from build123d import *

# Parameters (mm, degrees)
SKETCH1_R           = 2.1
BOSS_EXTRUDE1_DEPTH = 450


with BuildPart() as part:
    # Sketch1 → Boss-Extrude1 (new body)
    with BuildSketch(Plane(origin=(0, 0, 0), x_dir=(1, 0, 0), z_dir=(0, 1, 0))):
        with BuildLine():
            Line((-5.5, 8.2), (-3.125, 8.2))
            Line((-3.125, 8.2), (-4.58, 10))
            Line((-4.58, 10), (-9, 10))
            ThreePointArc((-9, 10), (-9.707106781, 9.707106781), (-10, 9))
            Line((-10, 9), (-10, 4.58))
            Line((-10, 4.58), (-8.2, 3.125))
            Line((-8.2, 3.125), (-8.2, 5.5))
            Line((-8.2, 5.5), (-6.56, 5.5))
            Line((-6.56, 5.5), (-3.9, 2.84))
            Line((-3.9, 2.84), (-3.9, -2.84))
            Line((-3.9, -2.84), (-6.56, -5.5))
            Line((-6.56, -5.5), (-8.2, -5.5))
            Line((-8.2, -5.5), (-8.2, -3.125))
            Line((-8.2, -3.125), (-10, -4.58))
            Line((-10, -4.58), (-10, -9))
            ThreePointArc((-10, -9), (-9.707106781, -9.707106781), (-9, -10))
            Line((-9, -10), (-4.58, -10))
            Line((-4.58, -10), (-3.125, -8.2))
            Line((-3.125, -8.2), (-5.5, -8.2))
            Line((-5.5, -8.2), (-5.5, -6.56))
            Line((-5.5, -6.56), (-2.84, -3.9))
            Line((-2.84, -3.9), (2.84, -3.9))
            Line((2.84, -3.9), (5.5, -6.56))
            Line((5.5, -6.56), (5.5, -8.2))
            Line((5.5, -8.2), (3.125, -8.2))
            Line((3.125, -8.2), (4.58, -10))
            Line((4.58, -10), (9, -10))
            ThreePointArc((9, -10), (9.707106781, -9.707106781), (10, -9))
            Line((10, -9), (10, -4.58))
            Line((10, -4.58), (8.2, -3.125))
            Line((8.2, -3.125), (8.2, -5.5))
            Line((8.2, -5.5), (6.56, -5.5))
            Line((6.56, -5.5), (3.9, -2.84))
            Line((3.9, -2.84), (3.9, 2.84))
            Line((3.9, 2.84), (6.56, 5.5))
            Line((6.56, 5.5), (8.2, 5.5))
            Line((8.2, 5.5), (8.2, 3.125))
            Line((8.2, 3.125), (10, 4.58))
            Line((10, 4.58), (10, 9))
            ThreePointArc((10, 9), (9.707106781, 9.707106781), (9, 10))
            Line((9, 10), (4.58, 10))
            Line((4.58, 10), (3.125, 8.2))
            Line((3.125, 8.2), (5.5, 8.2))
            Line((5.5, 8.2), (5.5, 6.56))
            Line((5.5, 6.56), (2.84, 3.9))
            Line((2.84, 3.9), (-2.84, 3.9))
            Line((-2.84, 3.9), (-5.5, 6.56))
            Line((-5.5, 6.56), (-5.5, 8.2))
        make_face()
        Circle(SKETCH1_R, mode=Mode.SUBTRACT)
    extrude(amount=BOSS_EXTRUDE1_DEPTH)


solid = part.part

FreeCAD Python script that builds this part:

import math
import FreeCAD as App
import Part
import Sketcher

V = App.Vector

doc = App.newDocument("Part")
body = doc.addObject("PartDesign::Body", "Body")

# Sketch on XZ plane
sketch1 = body.newObject("Sketcher::SketchObject", "Sketch")
sketch1.AttachmentSupport = (doc.getObject("XZ_Plane"), [""])
sketch1.MapMode = "FlatFace"
sketch1.addGeometry(Part.LineSegment(V(-5.5, -8.2, 0), V(-3.1, -8.2, 0)), False)
sketch1.addGeometry(Part.LineSegment(V(-3.1, -8.2, 0), V(-4.6, -10, 0)), False)
sketch1.addGeometry(Part.LineSegment(V(-4.6, -10, 0), V(-9, -10, 0)), False)
sketch1.addGeometry(Part.ArcOfCircle(Part.Circle(V(-9, -9, 0), V(0, 0, 1), 1), math.radians(-180), math.radians(-90)), False)
sketch1.addGeometry(Part.LineSegment(V(-10, -9, 0), V(-10, -4.6, 0)), False)
sketch1.addGeometry(Part.LineSegment(V(-10, -4.6, 0), V(-8.2, -3.1, 0)), False)
sketch1.addGeometry(Part.LineSegment(V(-8.2, -3.1, 0), V(-8.2, -5.5, 0)), False)
sketch1.addGeometry(Part.LineSegment(V(-8.2, -5.5, 0), V(-6.6, -5.5, 0)), False)
sketch1.addGeometry(Part.LineSegment(V(-6.6, -5.5, 0), V(-3.9, -2.8, 0)), False)
sketch1.addGeometry(Part.LineSegment(V(-3.9, -2.8, 0), V(-3.9, 2.8, 0)), False)
sketch1.addGeometry(Part.LineSegment(V(-3.9, 2.8, 0), V(-6.6, 5.5, 0)), False)
sketch1.addGeometry(Part.LineSegment(V(-6.6, 5.5, 0), V(-8.2, 5.5, 0)), False)
sketch1.addGeometry(Part.LineSegment(V(-8.2, 5.5, 0), V(-8.2, 3.1, 0)), False)
sketch1.addGeometry(Part.LineSegment(V(-8.2, 3.1, 0), V(-10, 4.6, 0)), False)
sketch1.addGeometry(Part.LineSegment(V(-10, 4.6, 0), V(-10, 9, 0)), False)
sketch1.addGeometry(Part.ArcOfCircle(Part.Circle(V(-9, 9, 0), V(0, 0, 1), 1), math.radians(90), math.radians(180)), False)
sketch1.addGeometry(Part.LineSegment(V(-9, 10, 0), V(-4.6, 10, 0)), False)
sketch1.addGeometry(Part.LineSegment(V(-4.6, 10, 0), V(-3.1, 8.2, 0)), False)
sketch1.addGeometry(Part.LineSegment(V(-3.1, 8.2, 0), V(-5.5, 8.2, 0)), False)
sketch1.addGeometry(Part.LineSegment(V(-5.5, 8.2, 0), V(-5.5, 6.6, 0)), False)
sketch1.addGeometry(Part.LineSegment(V(-5.5, 6.6, 0), V(-2.8, 3.9, 0)), False)
sketch1.addGeometry(Part.LineSegment(V(-2.8, 3.9, 0), V(2.8, 3.9, 0)), False)
sketch1.addGeometry(Part.LineSegment(V(2.8, 3.9, 0), V(5.5, 6.6, 0)), False)
sketch1.addGeometry(Part.LineSegment(V(5.5, 6.6, 0), V(5.5, 8.2, 0)), False)
sketch1.addGeometry(Part.LineSegment(V(5.5, 8.2, 0), V(3.1, 8.2, 0)), False)
sketch1.addGeometry(Part.LineSegment(V(3.1, 8.2, 0), V(4.6, 10, 0)), False)
sketch1.addGeometry(Part.LineSegment(V(4.6, 10, 0), V(9, 10, 0)), False)
sketch1.addGeometry(Part.ArcOfCircle(Part.Circle(V(9, 9, 0), V(0, 0, 1), 1), math.radians(0), math.radians(90)), False)
sketch1.addGeometry(Part.LineSegment(V(10, 9, 0), V(10, 4.6, 0)), False)
sketch1.addGeometry(Part.LineSegment(V(10, 4.6, 0), V(8.2, 3.1, 0)), False)
sketch1.addGeometry(Part.LineSegment(V(8.2, 3.1, 0), V(8.2, 5.5, 0)), False)
sketch1.addGeometry(Part.LineSegment(V(8.2, 5.5, 0), V(6.6, 5.5, 0)), False)
sketch1.addGeometry(Part.LineSegment(V(6.6, 5.5, 0), V(3.9, 2.8, 0)), False)
sketch1.addGeometry(Part.LineSegment(V(3.9, 2.8, 0), V(3.9, -2.8, 0)), False)
sketch1.addGeometry(Part.LineSegment(V(3.9, -2.8, 0), V(6.6, -5.5, 0)), False)
sketch1.addGeometry(Part.LineSegment(V(6.6, -5.5, 0), V(8.2, -5.5, 0)), False)
sketch1.addGeometry(Part.LineSegment(V(8.2, -5.5, 0), V(8.2, -3.1, 0)), False)
sketch1.addGeometry(Part.LineSegment(V(8.2, -3.1, 0), V(10, -4.6, 0)), False)
sketch1.addGeometry(Part.LineSegment(V(10, -4.6, 0), V(10, -9, 0)), False)
sketch1.addGeometry(Part.ArcOfCircle(Part.Circle(V(9, -9, 0), V(0, 0, 1), 1), math.radians(-90), math.radians(0)), False)
sketch1.addGeometry(Part.LineSegment(V(9, -10, 0), V(4.6, -10, 0)), False)
sketch1.addGeometry(Part.LineSegment(V(4.6, -10, 0), V(3.1, -8.2, 0)), False)
sketch1.addGeometry(Part.LineSegment(V(3.1, -8.2, 0), V(5.5, -8.2, 0)), False)
sketch1.addGeometry(Part.LineSegment(V(5.5, -8.2, 0), V(5.5, -6.6, 0)), False)
sketch1.addGeometry(Part.LineSegment(V(5.5, -6.6, 0), V(2.8, -3.9, 0)), False)
sketch1.addGeometry(Part.LineSegment(V(2.8, -3.9, 0), V(-2.8, -3.9, 0)), False)
sketch1.addGeometry(Part.LineSegment(V(-2.8, -3.9, 0), V(-5.5, -6.6, 0)), False)
sketch1.addGeometry(Part.LineSegment(V(-5.5, -6.6, 0), V(-5.5, -8.2, 0)), False)
sketch1.addGeometry(Part.Circle(V(0, 0, 0), V(0, 0, 1), 2.1), False)
sketch1.addConstraint(Sketcher.Constraint("Coincident", 0, 2, 1, 1))
sketch1.addConstraint(Sketcher.Constraint("Coincident", 1, 2, 2, 1))
sketch1.addConstraint(Sketcher.Constraint("Tangent", 2, 2, 3, 2))
sketch1.addConstraint(Sketcher.Constraint("Tangent", 3, 1, 4, 1))
sketch1.addConstraint(Sketcher.Constraint("Coincident", 4, 2, 5, 1))
sketch1.addConstraint(Sketcher.Constraint("Coincident", 5, 2, 6, 1))
sketch1.addConstraint(Sketcher.Constraint("Coincident", 6, 2, 7, 1))
sketch1.addConstraint(Sketcher.Constraint("Coincident", 7, 2, 8, 1))
sketch1.addConstraint(Sketcher.Constraint("Coincident", 8, 2, 9, 1))
sketch1.addConstraint(Sketcher.Constraint("Coincident", 9, 2, 10, 1))
sketch1.addConstraint(Sketcher.Constraint("Coincident", 10, 2, 11, 1))
sketch1.addConstraint(Sketcher.Constraint("Coincident", 11, 2, 12, 1))
sketch1.addConstraint(Sketcher.Constraint("Coincident", 12, 2, 13, 1))
sketch1.addConstraint(Sketcher.Constraint("Coincident", 13, 2, 14, 1))
sketch1.addConstraint(Sketcher.Constraint("Tangent", 14, 2, 15, 2))
sketch1.addConstraint(Sketcher.Constraint("Tangent", 15, 1, 16, 1))
sketch1.addConstraint(Sketcher.Constraint("Coincident", 16, 2, 17, 1))
sketch1.addConstraint(Sketcher.Constraint("Coincident", 17, 2, 18, 1))
sketch1.addConstraint(Sketcher.Constraint("Coincident", 18, 2, 19, 1))
sketch1.addConstraint(Sketcher.Constraint("Coincident", 19, 2, 20, 1))
sketch1.addConstraint(Sketcher.Constraint("Coincident", 20, 2, 21, 1))
sketch1.addConstraint(Sketcher.Constraint("Coincident", 21, 2, 22, 1))
sketch1.addConstraint(Sketcher.Constraint("Coincident", 22, 2, 23, 1))
sketch1.addConstraint(Sketcher.Constraint("Coincident", 23, 2, 24, 1))
sketch1.addConstraint(Sketcher.Constraint("Coincident", 24, 2, 25, 1))
sketch1.addConstraint(Sketcher.Constraint("Coincident", 25, 2, 26, 1))
sketch1.addConstraint(Sketcher.Constraint("Tangent", 26, 2, 27, 2))
sketch1.addConstraint(Sketcher.Constraint("Tangent", 27, 1, 28, 1))
sketch1.addConstraint(Sketcher.Constraint("Coincident", 28, 2, 29, 1))
sketch1.addConstraint(Sketcher.Constraint("Coincident", 29, 2, 30, 1))
sketch1.addConstraint(Sketcher.Constraint("Coincident", 30, 2, 31, 1))
sketch1.addConstraint(Sketcher.Constraint("Coincident", 31, 2, 32, 1))
sketch1.addConstraint(Sketcher.Constraint("Coincident", 32, 2, 33, 1))
sketch1.addConstraint(Sketcher.Constraint("Coincident", 33, 2, 34, 1))
sketch1.addConstraint(Sketcher.Constraint("Coincident", 34, 2, 35, 1))
sketch1.addConstraint(Sketcher.Constraint("Coincident", 35, 2, 36, 1))
sketch1.addConstraint(Sketcher.Constraint("Coincident", 36, 2, 37, 1))
sketch1.addConstraint(Sketcher.Constraint("Coincident", 37, 2, 38, 1))
sketch1.addConstraint(Sketcher.Constraint("Tangent", 38, 2, 39, 2))
sketch1.addConstraint(Sketcher.Constraint("Tangent", 39, 1, 40, 1))
sketch1.addConstraint(Sketcher.Constraint("Coincident", 40, 2, 41, 1))
sketch1.addConstraint(Sketcher.Constraint("Coincident", 41, 2, 42, 1))
sketch1.addConstraint(Sketcher.Constraint("Coincident", 42, 2, 43, 1))
sketch1.addConstraint(Sketcher.Constraint("Coincident", 43, 2, 44, 1))
sketch1.addConstraint(Sketcher.Constraint("Coincident", 44, 2, 45, 1))
sketch1.addConstraint(Sketcher.Constraint("Coincident", 45, 2, 46, 1))
sketch1.addConstraint(Sketcher.Constraint("Coincident", 46, 2, 47, 1))
sketch1.addConstraint(Sketcher.Constraint("Coincident", 47, 2, 0, 1))
sketch1.addConstraint(Sketcher.Constraint("Horizontal", 0))
sketch1.addConstraint(Sketcher.Constraint("Horizontal", 2))
sketch1.addConstraint(Sketcher.Constraint("Vertical", 4))
sketch1.addConstraint(Sketcher.Constraint("Vertical", 6))
sketch1.addConstraint(Sketcher.Constraint("Horizontal", 7))
sketch1.addConstraint(Sketcher.Constraint("Vertical", 9))
sketch1.addConstraint(Sketcher.Constraint("Horizontal", 11))
sketch1.addConstraint(Sketcher.Constraint("Vertical", 12))
sketch1.addConstraint(Sketcher.Constraint("Vertical", 14))
sketch1.addConstraint(Sketcher.Constraint("Horizontal", 16))
sketch1.addConstraint(Sketcher.Constraint("Horizontal", 18))
sketch1.addConstraint(Sketcher.Constraint("Vertical", 19))
sketch1.addConstraint(Sketcher.Constraint("Horizontal", 21))
sketch1.addConstraint(Sketcher.Constraint("Vertical", 23))
sketch1.addConstraint(Sketcher.Constraint("Horizontal", 24))
sketch1.addConstraint(Sketcher.Constraint("Horizontal", 26))
sketch1.addConstraint(Sketcher.Constraint("Vertical", 28))
sketch1.addConstraint(Sketcher.Constraint("Vertical", 30))
sketch1.addConstraint(Sketcher.Constraint("Horizontal", 31))
sketch1.addConstraint(Sketcher.Constraint("Vertical", 33))
sketch1.addConstraint(Sketcher.Constraint("Horizontal", 35))
sketch1.addConstraint(Sketcher.Constraint("Vertical", 36))
sketch1.addConstraint(Sketcher.Constraint("Vertical", 38))
sketch1.addConstraint(Sketcher.Constraint("Horizontal", 40))
sketch1.addConstraint(Sketcher.Constraint("Horizontal", 42))
sketch1.addConstraint(Sketcher.Constraint("Vertical", 43))
sketch1.addConstraint(Sketcher.Constraint("Horizontal", 45))
sketch1.addConstraint(Sketcher.Constraint("Vertical", 47))
sketch1.addConstraint(Sketcher.Constraint("Coincident", 48, 3, -1, 1))
sketch1.addConstraint(Sketcher.Constraint("Equal", 3, 15))
sketch1.addConstraint(Sketcher.Constraint("Equal", 15, 27))
sketch1.addConstraint(Sketcher.Constraint("Equal", 27, 39))
sketch1.addConstraint(Sketcher.Constraint("Symmetric", 3, 3, 27, 3, -1, 1))
sketch1.addConstraint(Sketcher.Constraint("Symmetric", 15, 3, 39, 3, -1, 1))
sketch1.addConstraint(Sketcher.Constraint("Symmetric", 0, 2, 24, 2, -1, 1))
sketch1.addConstraint(Sketcher.Constraint("Symmetric", 5, 2, 29, 2, -1, 1))
sketch1.addConstraint(Sketcher.Constraint("Symmetric", 7, 2, 31, 2, -1, 1))
sketch1.addConstraint(Sketcher.Constraint("Symmetric", 8, 2, 32, 2, -1, 1))
sketch1.addConstraint(Sketcher.Constraint("Symmetric", 10, 2, 34, 2, -1, 1))
sketch1.addConstraint(Sketcher.Constraint("Symmetric", 12, 2, 36, 2, -1, 1))
sketch1.addConstraint(Sketcher.Constraint("Symmetric", 17, 2, 41, 2, -1, 1))
sketch1.addConstraint(Sketcher.Constraint("Symmetric", 19, 2, 43, 2, -1, 1))
sketch1.addConstraint(Sketcher.Constraint("Symmetric", 20, 2, 44, 2, -1, 1))
sketch1.addConstraint(Sketcher.Constraint("Symmetric", 22, 2, 46, 2, -1, 1))
sketch1.addConstraint(Sketcher.Constraint("Symmetric", 15, 3, 27, 3, -2))
sketch1.addConstraint(Sketcher.Constraint("Symmetric", 19, 2, 22, 2, -2))
sketch1.addConstraint(Sketcher.Constraint("Symmetric", 17, 2, 24, 2, -2))
sketch1.addConstraint(Sketcher.Constraint("Symmetric", 12, 2, 29, 2, -2))
sketch1.addConstraint(Sketcher.Constraint("Symmetric", 10, 2, 31, 2, -2))
sketch1.addConstraint(Sketcher.Constraint("Perpendicular", 8, 10))
sketch1.addConstraint(Sketcher.Constraint("Perpendicular", 1, 13))
sketch1.addConstraint(Sketcher.Constraint("Perpendicular", 5, 17))
sketch1.addConstraint(Sketcher.Constraint("Parallel", 10, 20))
sketch1.addConstraint(Sketcher.Constraint("Perpendicular", 20, 22))
sketch1.addConstraint(Sketcher.Constraint("Perpendicular", 13, 25))
sketch1.addConstraint(Sketcher.Constraint("Perpendicular", 17, 29))
sketch1.addConstraint(Sketcher.Constraint("Perpendicular", 32, 34))
sketch1.addConstraint(Sketcher.Constraint("Perpendicular", 25, 37))
sketch1.addConstraint(Sketcher.Constraint("Perpendicular", 29, 41))
sketch1.addConstraint(Sketcher.Constraint("Perpendicular", 44, 46))
sketch1.addConstraint(Sketcher.Constraint("Horizontal", 13, 2, 28, 2))
sketch1.addConstraint(Sketcher.Constraint("Horizontal", 9, 2, 32, 2))
sketch1.addConstraint(Sketcher.Constraint("Equal", 40, 4))
sketch1.addConstraint(Sketcher.Constraint("Equal", 42, 6))
sketch1.addConstraint(Sketcher.Constraint("Equal", 45, 9))
sketch1.addConstraint(Sketcher.Constraint("Equal", 35, 19))
sketch1.addConstraint(Sketcher.Constraint("Equal", 1, 5))
sketch1.addConstraint(Sketcher.Constraint("Equal", 10, 20))
sketch1.addConstraint(Sketcher.Constraint("Radius", 3, 1.0))
sketch1.addConstraint(Sketcher.Constraint("Diameter", 48, 4.2))
sketch1.addConstraint(Sketcher.Constraint("DistanceX", 3, 3, -1, 1, 9.0))
sketch1.addConstraint(Sketcher.Constraint("DistanceX", 2, 2, 2, 1, 4.42))
sketch1.addConstraint(Sketcher.Constraint("DistanceX", 7, 1, 7, 2, 1.64))
sketch1.addConstraint(Sketcher.Constraint("DistanceX", 21, 1, 21, 2, 5.68))
sketch1.addConstraint(Sketcher.Constraint("DistanceY", 0, 2, -1, 1, 8.2))
sketch1.addConstraint(Sketcher.Constraint("DistanceY", 6, 2, -1, 1, 5.5))
sketch1.addConstraint(Sketcher.Constraint("DistanceX", 0, 1, 0, 2, 2.375))
pad1 = body.newObject("PartDesign::Pad", "Pad")
pad1.Profile = sketch1
pad1.Length = 450
pad1.Reversed = True

doc.recompute()
